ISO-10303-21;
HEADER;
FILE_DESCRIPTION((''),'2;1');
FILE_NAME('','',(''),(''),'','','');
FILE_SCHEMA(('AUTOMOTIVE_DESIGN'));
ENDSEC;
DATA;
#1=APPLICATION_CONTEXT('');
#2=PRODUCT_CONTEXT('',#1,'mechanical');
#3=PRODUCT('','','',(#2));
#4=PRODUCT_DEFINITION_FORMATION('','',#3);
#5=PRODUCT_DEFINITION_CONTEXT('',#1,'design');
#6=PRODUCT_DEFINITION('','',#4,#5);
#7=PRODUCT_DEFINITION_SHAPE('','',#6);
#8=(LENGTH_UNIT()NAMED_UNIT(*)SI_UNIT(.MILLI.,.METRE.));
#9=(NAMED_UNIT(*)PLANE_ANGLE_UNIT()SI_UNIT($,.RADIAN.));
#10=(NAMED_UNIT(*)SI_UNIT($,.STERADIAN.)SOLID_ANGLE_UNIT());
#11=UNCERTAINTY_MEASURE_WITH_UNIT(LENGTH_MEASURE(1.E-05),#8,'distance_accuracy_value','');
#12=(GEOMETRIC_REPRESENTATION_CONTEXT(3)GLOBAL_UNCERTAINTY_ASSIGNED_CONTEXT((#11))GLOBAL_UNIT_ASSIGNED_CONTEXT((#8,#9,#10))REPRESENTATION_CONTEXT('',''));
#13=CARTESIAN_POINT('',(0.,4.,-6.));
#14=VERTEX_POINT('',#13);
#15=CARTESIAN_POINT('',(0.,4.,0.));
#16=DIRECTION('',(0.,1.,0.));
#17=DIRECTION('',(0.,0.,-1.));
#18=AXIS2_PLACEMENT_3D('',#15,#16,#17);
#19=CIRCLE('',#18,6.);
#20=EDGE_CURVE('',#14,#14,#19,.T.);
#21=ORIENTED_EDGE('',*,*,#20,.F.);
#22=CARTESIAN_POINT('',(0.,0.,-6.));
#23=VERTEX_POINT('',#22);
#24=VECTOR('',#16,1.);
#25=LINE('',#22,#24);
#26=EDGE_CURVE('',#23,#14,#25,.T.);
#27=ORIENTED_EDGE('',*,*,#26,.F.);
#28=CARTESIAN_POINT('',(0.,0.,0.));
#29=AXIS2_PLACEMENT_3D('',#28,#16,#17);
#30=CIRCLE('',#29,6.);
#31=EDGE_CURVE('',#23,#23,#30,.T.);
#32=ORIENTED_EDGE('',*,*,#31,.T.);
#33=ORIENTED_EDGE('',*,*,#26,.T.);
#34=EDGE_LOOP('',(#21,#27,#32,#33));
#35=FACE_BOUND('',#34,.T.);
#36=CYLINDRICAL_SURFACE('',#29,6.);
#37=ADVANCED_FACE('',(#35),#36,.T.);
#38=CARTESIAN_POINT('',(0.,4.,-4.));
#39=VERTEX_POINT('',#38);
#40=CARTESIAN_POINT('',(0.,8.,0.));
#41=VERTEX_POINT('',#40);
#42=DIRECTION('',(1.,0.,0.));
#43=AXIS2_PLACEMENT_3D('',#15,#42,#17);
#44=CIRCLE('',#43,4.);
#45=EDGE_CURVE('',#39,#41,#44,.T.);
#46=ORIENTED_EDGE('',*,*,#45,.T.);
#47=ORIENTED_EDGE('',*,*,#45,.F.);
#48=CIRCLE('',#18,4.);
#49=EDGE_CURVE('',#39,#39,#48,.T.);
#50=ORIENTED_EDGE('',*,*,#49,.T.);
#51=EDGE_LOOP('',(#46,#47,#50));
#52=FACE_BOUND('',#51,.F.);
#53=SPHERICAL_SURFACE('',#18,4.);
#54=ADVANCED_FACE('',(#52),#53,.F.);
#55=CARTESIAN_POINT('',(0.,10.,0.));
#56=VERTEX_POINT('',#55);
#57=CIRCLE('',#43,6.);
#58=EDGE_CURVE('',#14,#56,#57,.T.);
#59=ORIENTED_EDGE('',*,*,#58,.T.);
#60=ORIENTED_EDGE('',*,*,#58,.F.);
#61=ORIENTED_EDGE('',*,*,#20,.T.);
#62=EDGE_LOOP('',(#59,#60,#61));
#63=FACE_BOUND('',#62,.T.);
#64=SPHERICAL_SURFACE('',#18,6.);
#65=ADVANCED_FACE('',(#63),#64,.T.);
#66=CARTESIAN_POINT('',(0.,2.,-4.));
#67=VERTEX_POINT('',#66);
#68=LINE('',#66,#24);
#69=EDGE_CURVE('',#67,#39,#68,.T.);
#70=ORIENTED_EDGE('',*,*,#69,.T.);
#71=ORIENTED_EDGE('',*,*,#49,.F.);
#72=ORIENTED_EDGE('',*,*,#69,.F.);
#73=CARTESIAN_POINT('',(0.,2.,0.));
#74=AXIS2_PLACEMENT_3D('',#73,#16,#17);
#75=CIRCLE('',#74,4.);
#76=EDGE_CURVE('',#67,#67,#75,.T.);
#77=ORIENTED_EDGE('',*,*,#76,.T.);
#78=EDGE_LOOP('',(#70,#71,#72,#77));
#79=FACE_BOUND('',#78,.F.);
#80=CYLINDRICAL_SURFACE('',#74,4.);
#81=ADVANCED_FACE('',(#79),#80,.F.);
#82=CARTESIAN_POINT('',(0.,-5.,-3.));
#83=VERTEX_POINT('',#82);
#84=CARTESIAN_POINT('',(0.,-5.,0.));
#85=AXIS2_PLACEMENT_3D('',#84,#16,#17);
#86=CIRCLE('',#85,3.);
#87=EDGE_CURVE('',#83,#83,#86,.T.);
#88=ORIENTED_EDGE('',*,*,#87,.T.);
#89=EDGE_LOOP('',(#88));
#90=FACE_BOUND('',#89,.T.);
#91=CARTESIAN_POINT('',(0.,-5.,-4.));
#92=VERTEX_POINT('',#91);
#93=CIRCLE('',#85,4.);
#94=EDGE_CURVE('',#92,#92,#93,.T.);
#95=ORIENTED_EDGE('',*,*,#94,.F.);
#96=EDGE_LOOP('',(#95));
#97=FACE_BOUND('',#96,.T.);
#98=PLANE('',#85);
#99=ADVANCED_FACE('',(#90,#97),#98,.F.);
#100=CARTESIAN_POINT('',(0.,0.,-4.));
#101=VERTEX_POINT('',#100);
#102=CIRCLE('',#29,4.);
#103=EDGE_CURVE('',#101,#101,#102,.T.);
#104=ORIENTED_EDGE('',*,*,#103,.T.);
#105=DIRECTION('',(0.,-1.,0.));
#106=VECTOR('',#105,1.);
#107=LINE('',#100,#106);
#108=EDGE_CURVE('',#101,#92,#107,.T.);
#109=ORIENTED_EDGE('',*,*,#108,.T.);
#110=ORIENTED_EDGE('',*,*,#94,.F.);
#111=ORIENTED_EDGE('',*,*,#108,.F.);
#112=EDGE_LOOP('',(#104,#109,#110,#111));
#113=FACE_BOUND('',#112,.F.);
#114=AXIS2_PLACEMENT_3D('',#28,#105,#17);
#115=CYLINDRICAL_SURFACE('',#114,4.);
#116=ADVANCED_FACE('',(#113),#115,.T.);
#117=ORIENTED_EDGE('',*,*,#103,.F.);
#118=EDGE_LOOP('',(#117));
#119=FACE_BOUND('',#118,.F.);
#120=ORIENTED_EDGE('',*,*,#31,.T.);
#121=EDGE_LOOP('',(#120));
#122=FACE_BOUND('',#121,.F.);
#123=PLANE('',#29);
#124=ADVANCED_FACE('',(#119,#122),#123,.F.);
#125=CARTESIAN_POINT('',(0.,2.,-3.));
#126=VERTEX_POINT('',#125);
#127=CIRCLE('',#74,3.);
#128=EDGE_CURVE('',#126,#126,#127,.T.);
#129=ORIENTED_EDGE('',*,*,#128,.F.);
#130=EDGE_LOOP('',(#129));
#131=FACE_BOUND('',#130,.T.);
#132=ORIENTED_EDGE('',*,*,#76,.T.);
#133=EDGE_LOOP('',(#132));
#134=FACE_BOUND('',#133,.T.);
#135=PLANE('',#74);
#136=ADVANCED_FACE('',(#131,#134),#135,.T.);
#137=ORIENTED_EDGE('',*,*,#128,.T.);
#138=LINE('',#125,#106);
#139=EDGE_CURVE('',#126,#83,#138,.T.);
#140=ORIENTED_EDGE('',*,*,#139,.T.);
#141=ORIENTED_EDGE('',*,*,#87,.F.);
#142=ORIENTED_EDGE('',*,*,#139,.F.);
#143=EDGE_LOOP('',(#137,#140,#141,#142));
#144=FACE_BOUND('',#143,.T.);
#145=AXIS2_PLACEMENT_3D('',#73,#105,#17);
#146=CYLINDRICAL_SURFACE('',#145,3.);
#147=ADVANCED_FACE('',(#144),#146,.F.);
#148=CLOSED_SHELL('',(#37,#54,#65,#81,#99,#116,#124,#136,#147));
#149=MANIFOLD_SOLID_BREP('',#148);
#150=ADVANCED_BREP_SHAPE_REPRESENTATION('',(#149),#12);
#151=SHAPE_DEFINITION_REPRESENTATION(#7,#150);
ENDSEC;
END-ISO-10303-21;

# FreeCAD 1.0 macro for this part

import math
import FreeCAD as App
import Part
import Sketcher

V = App.Vector
Q = App.Units.Quantity

doc = App.newDocument("Part")
params = doc.addObject("Spreadsheet::Sheet", "Params")
for row, (alias, value) in enumerate([
    ("sketch1_radius", "4 mm"),
    ("sketch1_width", "2 mm"),
    ("sketch1_width2", "5 mm"),
    ("sketch1_width3", "4 mm"),
    ("sketch1_height", "1 mm"),
    ("revolution_angle", "360 deg"),
], start=1):
    params.set(f"A{row}", alias)
    params.set(f"B{row}", "=" + value)
    params.setAlias(f"B{row}", alias)

body = doc.addObject("PartDesign::Body", "Body")

# Sketch on YZ plane
sketch1 = body.newObject("Sketcher::SketchObject", "Sketch")
sketch1.AttachmentSupport = (doc.getObject("YZ_Plane"), [""])
sketch1.MapMode = "FlatFace"
sketch1.addGeometry([
    Part.ArcOfCircle(Part.Circle(V(4, 0, 0), V(0, 0, 1), 6), math.radians(-90), math.radians(0)),  # 0
    Part.LineSegment(V(10, 0, 0), V(8, 0, 0)),  # 1
    Part.ArcOfCircle(Part.Circle(V(4, 0, 0), V(0, 0, 1), 4), math.radians(-90), math.radians(0)),  # 2
    Part.LineSegment(V(4, -4, 0), V(2, -4, 0)),  # 3
    Part.LineSegment(V(2, -4, 0), V(2, -3, 0)),  # 4
    Part.LineSegment(V(2, -3, 0), V(-5, -3, 0)),  # 5
    Part.LineSegment(V(-5, -3, 0), V(-5, -4, 0)),  # 6
    Part.LineSegment(V(-5, -4, 0), V(0, -4, 0)),  # 7
    Part.LineSegment(V(0, -4, 0), V(0, -6, 0)),  # 8
    Part.LineSegment(V(0, -6, 0), V(4, -6, 0)),  # 9
], False)
sketch1.addConstraint([
    Sketcher.Constraint("Coincident", 0, 2, 1, 1),
    Sketcher.Constraint("Coincident", 1, 2, 2, 2),
    Sketcher.Constraint("Tangent", 2, 1, 3, 1),
    Sketcher.Constraint("Coincident", 3, 2, 4, 1),
    Sketcher.Constraint("Coincident", 4, 2, 5, 1),
    Sketcher.Constraint("Coincident", 5, 2, 6, 1),
    Sketcher.Constraint("Coincident", 6, 2, 7, 1),
    Sketcher.Constraint("Coincident", 7, 2, 8, 1),
    Sketcher.Constraint("Coincident", 8, 2, 9, 1),
    Sketcher.Constraint("Tangent", 9, 2, 0, 1),
    Sketcher.Constraint("Horizontal", 1),
    Sketcher.Constraint("Horizontal", 3),
    Sketcher.Constraint("Vertical", 4),
    Sketcher.Constraint("Horizontal", 5),
    Sketcher.Constraint("Vertical", 6),
    Sketcher.Constraint("Horizontal", 7),
    Sketcher.Constraint("Vertical", 8),
    Sketcher.Constraint("Horizontal", 9),
    Sketcher.Constraint("Coincident", 2, 3, 0, 3),
    Sketcher.Constraint("PointOnObject", 0, 3, -1),
    Sketcher.Constraint("PointOnObject", 0, 2, -1),
    Sketcher.Constraint("PointOnObject", 7, 2, -2),
    Sketcher.Constraint("Horizontal", 3, 2, 6, 2),
    Sketcher.Constraint("Equal", 1, 3),
    Sketcher.Constraint("Radius", 2, Q("4 mm")),
    Sketcher.Constraint("DistanceX", 1, 2, 1, 1, Q("2 mm")),
    Sketcher.Constraint("DistanceX", 7, 1, 7, 2, Q("5 mm")),
    Sketcher.Constraint("DistanceX", 9, 1, 9, 2, Q("4 mm")),
    Sketcher.Constraint("DistanceY", 4, 1, 4, 2, Q("1 mm")),
])
sketch1.setExpression("Constraints[24]", "Params.sketch1_radius")
sketch1.setExpression("Constraints[25]", "Params.sketch1_width")
sketch1.setExpression("Constraints[26]", "Params.sketch1_width2")
sketch1.setExpression("Constraints[27]", "Params.sketch1_width3")
sketch1.setExpression("Constraints[28]", "Params.sketch1_height")
revolution = body.newObject("PartDesign::Revolution", "Revolution")
revolution.Profile = sketch1
revolution.ReferenceAxis = (sketch1, ["H_Axis"])
revolution.setExpression("Angle", "Params.revolution_angle")

doc.recompute()
